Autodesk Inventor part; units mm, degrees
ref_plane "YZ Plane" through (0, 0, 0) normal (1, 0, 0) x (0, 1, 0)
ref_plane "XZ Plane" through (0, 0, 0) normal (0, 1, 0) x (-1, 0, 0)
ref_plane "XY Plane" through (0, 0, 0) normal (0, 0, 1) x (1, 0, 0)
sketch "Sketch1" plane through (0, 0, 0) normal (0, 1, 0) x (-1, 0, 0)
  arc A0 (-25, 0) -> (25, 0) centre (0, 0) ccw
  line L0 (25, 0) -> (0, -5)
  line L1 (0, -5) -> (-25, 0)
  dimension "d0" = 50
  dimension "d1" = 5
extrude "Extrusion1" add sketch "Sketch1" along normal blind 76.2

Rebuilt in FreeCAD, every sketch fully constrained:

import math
import FreeCAD as App
import Part
import Sketcher

V = App.Vector
Q = App.Units.Quantity

doc = App.newDocument("Part")
body = doc.addObject("PartDesign::Body", "Body")

# Sketch on XZ plane
sketch1 = body.newObject("Sketcher::SketchObject", "Sketch")
sketch1.AttachmentSupport = (doc.getObject("XZ_Plane"), [""])
sketch1.MapMode = "FlatFace"
sketch1.addGeometry([
    Part.LineSegment(V(0, -5, 0), V(25, 0, 0)),
    Part.ArcOfCircle(Part.Circle(V(0, 0, 0), V(0, 0, 1), 25), math.radians(180), math.radians(360)),
    Part.LineSegment(V(-25, 0, 0), V(0, -5, 0)),
], False)
sketch1.addConstraint([
    Sketcher.Constraint("Coincident", 0, 2, 1, 2),
    Sketcher.Constraint("Coincident", 1, 1, 2, 1),
    Sketcher.Constraint("Coincident", 2, 2, 0, 1),
    Sketcher.Constraint("Coincident", 1, 3, -1, 1),
    Sketcher.Constraint("PointOnObject", 0, 2, -1),
    Sketcher.Constraint("PointOnObject", 1, 1, -1),
    Sketcher.Constraint("PointOnObject", 2, 2, -2),
    Sketcher.Constraint("Radius", 1, 25.0),
    Sketcher.Constraint("DistanceY", 2, 2, -1, 1, 5.0),
])
pad1 = body.newObject("PartDesign::Pad", "Pad")
pad1.Profile = sketch1
pad1.Length = Q("3 in")
pad1.Reversed = True

doc.recompute()
